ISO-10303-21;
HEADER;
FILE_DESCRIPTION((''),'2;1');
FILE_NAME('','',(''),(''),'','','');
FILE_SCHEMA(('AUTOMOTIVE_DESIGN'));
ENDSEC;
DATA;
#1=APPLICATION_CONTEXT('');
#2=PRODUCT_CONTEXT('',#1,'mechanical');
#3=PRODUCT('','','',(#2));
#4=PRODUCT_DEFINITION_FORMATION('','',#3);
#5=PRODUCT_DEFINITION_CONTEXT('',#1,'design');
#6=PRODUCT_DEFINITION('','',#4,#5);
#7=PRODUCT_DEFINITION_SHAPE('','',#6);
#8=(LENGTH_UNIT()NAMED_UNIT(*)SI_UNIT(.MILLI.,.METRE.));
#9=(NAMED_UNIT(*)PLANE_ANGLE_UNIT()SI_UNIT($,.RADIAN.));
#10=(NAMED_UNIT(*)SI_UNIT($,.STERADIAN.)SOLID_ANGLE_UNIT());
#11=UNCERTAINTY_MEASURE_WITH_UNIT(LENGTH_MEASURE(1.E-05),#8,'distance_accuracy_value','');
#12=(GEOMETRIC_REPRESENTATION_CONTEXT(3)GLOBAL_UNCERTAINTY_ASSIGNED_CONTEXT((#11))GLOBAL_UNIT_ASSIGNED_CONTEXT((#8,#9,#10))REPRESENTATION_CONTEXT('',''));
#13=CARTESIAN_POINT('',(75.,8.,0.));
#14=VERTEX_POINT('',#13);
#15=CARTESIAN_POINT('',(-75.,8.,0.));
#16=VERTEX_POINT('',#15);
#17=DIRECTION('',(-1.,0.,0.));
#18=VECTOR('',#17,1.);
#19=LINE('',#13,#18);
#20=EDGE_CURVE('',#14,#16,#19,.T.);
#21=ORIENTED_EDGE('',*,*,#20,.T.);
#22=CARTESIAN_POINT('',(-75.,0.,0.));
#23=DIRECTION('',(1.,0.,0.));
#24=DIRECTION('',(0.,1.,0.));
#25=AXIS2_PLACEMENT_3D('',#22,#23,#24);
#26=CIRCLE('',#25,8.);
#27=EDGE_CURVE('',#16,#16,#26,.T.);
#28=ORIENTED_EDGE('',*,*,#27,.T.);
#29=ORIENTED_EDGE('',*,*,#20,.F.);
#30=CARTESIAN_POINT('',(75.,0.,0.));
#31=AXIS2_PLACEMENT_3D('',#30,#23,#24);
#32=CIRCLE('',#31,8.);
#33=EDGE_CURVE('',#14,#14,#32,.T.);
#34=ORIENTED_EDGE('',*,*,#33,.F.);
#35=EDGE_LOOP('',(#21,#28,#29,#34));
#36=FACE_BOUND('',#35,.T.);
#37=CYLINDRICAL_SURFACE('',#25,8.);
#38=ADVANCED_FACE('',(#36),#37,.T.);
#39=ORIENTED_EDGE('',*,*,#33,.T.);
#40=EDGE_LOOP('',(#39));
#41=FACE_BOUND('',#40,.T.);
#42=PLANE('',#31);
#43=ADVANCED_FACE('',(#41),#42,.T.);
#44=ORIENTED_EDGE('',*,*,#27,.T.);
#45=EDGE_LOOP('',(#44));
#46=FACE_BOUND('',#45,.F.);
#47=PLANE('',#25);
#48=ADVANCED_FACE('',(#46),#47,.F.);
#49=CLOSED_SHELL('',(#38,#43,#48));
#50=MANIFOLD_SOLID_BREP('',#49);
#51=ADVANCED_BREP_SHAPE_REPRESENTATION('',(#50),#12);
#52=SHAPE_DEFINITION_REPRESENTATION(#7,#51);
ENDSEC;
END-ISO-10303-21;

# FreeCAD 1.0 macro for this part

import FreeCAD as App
import Part
import Sketcher
Q = App.Units.Quantity


def add_polygon(sketch, points):
    """Adds a closed chain of lines whose ends are joined by coincident constraints."""
    first, n = sketch.GeometryCount, len(points)
    for a, b in zip(points, points[1:] + points[:1]):
        sketch.addGeometry(Part.LineSegment(App.Vector(*a, 0), App.Vector(*b, 0)), False)
    for i in range(n):
        sketch.addConstraint(Sketcher.Constraint("Coincident", first + i, 2, first + (i + 1) % n, 1))

doc = App.newDocument("Part")
params = doc.addObject("Spreadsheet::Sheet", "Params")
for row, (alias, value) in enumerate([
    ("sketch1_width", "150 mm"),
    ("sketch1_height", "8 mm"),
    ("revolution_angle", "360 deg"),
], start=1):
    params.set(f"A{row}", alias)
    params.set(f"B{row}", "=" + value)
    params.setAlias(f"B{row}", alias)

body = doc.addObject("PartDesign::Body", "Body")

# Sketch on XY plane
sketch1 = doc.addObject("Sketcher::SketchObject", "Sketch")
body.addObject(sketch1)
sketch1.AttachmentSupport = (doc.XY_Plane, [""])
sketch1.MapMode = "FlatFace"
add_polygon(sketch1, [(75, 0), (75, 8), (-75, 8), (-75, 0)])  # lines 0-3
sketch1.addConstraint(Sketcher.Constraint("Vertical", 0))
sketch1.addConstraint(Sketcher.Constraint("Horizontal", 1))
sketch1.addConstraint(Sketcher.Constraint("Vertical", 2))
sketch1.addConstraint(Sketcher.Constraint("Horizontal", 3))
sketch1.addConstraint(Sketcher.Constraint("Symmetric", 2, 2, 3, 2, -1, 1))
sketch1.addConstraint(Sketcher.Constraint("DistanceX", 1, 2, 1, 1, Q("150 mm")))
sketch1.addConstraint(Sketcher.Constraint("DistanceY", 0, 1, 0, 2, Q("8 mm")))
sketch1.setExpression("Constraints[9]", "Params.sketch1_width")
sketch1.setExpression("Constraints[10]", "Params.sketch1_height")
revolution = doc.addObject("PartDesign::Revolution", "Revolution")
body.addObject(revolution)
revolution.Profile = sketch1
revolution.ReferenceAxis = (sketch1, ["H_Axis"])
revolution.setExpression("Angle", "Params.revolution_angle")

doc.recompute()
